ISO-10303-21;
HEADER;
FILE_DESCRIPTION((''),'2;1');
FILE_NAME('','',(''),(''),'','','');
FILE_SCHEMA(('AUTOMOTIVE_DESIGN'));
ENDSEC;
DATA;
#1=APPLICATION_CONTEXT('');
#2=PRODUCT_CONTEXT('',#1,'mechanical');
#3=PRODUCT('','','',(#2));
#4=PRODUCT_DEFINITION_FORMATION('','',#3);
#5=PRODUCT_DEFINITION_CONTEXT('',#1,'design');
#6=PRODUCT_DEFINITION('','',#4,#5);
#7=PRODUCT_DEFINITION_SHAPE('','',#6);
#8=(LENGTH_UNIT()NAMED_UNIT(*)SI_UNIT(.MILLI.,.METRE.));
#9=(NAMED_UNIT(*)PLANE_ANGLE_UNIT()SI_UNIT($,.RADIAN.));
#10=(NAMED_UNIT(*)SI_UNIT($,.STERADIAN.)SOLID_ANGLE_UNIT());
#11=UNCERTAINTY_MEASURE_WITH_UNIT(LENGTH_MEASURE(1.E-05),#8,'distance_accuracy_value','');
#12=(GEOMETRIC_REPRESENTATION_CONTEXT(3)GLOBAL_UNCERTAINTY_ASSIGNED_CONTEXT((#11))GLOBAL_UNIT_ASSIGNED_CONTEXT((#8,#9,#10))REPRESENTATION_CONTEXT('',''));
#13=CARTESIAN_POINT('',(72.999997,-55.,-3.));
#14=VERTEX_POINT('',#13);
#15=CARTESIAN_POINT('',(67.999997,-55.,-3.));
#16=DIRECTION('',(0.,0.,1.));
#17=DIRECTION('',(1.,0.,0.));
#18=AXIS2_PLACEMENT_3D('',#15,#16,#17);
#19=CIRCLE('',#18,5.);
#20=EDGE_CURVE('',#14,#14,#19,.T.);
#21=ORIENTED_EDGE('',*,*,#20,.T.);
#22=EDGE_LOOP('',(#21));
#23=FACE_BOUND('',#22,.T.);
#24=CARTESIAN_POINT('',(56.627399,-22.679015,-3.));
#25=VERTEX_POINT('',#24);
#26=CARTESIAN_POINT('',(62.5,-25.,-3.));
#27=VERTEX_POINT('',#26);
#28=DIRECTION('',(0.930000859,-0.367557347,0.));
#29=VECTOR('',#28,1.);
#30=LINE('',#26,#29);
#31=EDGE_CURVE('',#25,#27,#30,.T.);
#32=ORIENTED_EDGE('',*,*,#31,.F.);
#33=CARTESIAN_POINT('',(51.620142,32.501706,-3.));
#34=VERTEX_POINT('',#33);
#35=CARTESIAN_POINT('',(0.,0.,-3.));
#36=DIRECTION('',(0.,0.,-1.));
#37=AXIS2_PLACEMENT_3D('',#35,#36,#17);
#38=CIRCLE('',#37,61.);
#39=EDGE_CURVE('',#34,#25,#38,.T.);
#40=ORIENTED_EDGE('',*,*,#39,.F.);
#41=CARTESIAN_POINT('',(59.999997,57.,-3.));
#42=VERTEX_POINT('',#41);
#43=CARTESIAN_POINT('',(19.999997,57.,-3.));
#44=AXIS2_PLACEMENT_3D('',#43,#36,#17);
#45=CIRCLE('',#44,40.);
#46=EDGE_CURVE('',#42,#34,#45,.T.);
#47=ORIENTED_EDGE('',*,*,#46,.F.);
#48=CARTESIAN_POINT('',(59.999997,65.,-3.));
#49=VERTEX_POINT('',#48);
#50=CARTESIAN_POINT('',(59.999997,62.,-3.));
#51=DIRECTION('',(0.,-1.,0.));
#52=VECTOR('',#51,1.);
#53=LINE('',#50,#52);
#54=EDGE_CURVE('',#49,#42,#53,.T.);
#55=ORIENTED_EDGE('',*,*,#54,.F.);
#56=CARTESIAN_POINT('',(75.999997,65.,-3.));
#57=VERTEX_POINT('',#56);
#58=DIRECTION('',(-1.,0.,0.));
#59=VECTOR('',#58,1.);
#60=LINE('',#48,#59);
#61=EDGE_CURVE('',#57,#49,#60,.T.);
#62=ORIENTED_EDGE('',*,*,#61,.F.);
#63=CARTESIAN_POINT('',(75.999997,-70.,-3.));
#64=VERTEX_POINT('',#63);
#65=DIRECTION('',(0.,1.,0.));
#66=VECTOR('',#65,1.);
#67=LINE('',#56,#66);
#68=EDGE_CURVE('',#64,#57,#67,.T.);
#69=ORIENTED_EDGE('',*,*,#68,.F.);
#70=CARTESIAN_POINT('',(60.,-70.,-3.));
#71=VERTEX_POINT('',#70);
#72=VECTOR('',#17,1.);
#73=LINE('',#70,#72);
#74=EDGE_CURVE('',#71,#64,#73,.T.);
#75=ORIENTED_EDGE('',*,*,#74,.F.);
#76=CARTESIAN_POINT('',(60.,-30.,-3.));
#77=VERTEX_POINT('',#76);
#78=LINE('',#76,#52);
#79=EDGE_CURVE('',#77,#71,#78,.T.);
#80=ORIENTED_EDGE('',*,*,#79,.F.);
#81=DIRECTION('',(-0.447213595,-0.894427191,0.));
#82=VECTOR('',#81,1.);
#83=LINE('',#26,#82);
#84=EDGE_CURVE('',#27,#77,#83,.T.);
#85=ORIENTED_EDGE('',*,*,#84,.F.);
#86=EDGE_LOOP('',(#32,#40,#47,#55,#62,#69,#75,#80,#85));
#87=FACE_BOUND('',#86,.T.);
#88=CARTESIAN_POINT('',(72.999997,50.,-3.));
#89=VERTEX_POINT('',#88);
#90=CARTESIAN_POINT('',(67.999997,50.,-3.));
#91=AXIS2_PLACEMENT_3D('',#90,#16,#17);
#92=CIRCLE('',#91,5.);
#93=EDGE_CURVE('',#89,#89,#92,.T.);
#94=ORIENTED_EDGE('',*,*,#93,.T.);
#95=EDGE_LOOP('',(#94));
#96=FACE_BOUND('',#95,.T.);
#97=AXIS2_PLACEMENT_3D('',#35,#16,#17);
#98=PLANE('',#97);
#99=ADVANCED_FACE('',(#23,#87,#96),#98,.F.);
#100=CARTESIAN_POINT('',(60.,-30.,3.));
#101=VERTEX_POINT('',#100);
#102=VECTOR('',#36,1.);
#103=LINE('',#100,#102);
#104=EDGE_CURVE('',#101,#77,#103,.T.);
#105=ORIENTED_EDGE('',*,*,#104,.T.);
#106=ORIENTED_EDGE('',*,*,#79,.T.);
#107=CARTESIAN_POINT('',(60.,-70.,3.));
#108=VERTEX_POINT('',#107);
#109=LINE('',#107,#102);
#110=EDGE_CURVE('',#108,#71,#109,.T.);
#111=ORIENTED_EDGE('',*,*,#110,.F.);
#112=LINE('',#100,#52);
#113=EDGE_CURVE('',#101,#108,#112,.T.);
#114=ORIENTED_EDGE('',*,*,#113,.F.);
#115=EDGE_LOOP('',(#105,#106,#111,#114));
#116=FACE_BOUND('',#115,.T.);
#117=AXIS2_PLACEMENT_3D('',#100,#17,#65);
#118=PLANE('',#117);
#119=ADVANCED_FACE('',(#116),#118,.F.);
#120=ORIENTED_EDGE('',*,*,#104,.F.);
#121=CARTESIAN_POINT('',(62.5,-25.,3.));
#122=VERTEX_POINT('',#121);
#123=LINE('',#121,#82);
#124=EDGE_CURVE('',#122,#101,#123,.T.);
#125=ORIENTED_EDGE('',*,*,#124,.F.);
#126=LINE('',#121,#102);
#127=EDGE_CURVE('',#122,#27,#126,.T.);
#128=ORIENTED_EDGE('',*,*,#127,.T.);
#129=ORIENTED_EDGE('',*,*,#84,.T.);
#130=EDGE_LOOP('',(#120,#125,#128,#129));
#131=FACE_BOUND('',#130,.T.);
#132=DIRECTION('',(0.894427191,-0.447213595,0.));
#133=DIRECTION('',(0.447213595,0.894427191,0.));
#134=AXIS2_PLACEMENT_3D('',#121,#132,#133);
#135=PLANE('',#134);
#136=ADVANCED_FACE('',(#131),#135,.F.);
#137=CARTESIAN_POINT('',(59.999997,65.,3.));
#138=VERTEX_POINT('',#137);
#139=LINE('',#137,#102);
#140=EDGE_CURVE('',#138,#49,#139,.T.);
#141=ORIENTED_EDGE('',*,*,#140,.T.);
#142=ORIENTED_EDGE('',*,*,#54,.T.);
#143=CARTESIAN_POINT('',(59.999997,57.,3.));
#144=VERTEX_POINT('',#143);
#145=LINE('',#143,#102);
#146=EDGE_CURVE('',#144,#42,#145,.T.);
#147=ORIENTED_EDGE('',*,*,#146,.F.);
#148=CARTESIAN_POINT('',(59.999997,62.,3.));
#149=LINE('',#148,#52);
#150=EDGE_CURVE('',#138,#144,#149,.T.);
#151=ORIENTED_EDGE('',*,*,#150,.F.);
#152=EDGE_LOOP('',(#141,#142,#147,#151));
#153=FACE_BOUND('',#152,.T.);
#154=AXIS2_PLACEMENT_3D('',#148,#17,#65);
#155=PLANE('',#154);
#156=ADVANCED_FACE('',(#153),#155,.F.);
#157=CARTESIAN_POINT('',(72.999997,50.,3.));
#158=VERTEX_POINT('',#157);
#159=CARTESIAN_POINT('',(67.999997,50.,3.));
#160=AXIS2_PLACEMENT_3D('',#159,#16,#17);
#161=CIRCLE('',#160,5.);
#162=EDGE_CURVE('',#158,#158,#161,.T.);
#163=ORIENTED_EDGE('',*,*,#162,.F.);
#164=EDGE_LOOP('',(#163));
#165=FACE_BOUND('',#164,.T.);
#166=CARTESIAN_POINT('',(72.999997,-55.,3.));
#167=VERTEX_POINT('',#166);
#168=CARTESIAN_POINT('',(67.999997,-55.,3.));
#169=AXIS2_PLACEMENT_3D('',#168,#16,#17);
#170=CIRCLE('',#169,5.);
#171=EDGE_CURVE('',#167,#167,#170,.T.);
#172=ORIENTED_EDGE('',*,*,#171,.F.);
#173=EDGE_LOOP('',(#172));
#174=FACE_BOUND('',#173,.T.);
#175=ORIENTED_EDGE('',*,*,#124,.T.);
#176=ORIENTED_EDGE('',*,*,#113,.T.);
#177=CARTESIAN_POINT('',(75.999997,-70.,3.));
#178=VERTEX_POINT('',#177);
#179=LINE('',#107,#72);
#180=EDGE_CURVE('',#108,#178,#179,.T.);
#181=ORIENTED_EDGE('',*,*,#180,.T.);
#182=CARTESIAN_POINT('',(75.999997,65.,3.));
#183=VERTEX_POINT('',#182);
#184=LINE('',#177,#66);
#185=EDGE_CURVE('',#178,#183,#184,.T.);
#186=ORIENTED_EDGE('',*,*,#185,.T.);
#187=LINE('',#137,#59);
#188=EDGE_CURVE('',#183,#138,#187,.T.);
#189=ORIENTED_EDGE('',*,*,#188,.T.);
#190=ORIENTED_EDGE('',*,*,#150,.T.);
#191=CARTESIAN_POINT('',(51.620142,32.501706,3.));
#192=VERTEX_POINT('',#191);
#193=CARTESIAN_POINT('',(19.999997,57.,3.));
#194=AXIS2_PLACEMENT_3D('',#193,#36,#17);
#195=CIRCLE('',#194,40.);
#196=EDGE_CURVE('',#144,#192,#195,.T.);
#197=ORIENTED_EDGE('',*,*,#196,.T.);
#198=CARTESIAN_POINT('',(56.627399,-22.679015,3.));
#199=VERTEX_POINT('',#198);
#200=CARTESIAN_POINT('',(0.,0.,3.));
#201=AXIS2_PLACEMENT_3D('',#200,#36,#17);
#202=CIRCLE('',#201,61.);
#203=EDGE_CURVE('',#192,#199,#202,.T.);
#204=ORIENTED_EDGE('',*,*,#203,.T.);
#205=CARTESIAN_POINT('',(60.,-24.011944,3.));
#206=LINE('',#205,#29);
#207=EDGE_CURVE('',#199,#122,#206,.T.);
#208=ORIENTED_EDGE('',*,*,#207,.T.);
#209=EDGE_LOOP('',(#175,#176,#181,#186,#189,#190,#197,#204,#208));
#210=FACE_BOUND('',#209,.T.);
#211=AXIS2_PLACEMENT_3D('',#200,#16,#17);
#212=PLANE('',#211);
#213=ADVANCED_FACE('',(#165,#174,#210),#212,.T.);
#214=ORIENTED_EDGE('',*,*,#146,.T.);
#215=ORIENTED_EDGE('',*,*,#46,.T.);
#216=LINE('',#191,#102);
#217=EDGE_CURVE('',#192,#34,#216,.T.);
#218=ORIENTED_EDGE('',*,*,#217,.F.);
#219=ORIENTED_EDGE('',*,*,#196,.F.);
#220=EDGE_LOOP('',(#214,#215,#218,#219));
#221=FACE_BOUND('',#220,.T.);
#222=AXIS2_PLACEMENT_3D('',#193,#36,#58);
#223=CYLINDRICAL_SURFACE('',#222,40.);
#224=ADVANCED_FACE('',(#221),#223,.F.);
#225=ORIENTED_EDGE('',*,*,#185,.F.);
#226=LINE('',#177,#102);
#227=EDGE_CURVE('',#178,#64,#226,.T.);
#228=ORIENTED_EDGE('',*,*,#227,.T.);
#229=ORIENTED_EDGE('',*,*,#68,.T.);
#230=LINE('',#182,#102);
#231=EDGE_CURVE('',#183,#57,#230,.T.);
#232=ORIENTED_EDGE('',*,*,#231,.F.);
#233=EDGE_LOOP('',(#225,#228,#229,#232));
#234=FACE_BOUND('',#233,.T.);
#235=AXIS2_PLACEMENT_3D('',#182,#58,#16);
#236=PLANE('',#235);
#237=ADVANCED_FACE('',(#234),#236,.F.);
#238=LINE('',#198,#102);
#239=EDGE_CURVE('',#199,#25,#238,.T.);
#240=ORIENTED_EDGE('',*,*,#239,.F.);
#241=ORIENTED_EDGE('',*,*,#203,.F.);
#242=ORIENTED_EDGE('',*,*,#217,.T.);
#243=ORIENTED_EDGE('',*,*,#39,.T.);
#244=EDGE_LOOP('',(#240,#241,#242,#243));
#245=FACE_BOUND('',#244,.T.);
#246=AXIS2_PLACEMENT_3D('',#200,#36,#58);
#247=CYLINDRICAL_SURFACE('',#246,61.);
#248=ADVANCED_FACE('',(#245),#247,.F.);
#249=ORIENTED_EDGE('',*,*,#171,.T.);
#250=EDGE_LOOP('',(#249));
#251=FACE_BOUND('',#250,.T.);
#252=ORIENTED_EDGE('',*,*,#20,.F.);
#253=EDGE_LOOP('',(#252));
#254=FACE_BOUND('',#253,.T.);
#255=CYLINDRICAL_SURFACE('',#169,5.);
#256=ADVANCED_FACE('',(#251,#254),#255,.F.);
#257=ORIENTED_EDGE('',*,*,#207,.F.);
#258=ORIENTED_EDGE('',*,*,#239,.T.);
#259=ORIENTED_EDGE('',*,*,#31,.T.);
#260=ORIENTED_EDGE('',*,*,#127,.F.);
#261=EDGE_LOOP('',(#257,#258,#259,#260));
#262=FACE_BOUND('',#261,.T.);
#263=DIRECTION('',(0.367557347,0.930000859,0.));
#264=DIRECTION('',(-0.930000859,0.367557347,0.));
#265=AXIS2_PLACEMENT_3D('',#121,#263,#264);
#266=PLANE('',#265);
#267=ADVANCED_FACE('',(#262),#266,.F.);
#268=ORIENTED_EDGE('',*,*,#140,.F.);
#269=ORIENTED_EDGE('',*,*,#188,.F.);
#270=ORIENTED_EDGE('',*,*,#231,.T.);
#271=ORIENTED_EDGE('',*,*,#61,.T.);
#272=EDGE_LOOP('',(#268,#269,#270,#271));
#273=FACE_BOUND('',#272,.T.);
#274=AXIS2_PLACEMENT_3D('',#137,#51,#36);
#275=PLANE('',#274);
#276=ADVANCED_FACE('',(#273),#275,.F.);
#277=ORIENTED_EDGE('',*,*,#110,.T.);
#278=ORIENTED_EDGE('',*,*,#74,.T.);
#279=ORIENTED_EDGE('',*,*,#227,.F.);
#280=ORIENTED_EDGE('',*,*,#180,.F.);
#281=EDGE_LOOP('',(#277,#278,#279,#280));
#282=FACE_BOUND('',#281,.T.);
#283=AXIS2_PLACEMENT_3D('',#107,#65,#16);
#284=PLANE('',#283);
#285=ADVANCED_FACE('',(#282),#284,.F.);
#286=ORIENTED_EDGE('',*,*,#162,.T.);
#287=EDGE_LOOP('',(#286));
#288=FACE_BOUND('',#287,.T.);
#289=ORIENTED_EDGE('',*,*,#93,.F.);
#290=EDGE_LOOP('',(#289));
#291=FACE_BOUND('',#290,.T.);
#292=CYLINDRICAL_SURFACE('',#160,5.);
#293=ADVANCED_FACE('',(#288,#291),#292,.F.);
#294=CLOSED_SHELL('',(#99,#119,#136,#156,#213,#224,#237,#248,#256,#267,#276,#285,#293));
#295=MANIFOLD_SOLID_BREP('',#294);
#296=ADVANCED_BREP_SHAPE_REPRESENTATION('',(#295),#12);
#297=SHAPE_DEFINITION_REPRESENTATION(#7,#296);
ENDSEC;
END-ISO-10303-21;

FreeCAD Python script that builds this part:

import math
import FreeCAD as App
import Part
import Sketcher
from FreeCAD import Vector
Q = App.Units.Quantity

doc = App.newDocument("Part")
body = doc.addObject("PartDesign::Body", "Body")

# Sketch on XY plane
sketch1 = doc.addObject("Sketcher::SketchObject", "Sketch")
body.addObject(sketch1)
sketch1.AttachmentSupport = (doc.XY_Plane, [""])
sketch1.MapMode = "FlatFace"
sketch1.addGeometry(Part.ArcOfCircle(Part.Circle(Vector(19.999997, 57, 0), Vector(0, 0, 1), 40), math.radians(-37.767398), math.radians(0)), False)
sketch1.addGeometry(Part.ArcOfCircle(Part.Circle(Vector(0, 0, 0), Vector(0, 0, 1), 61), math.radians(-21.825877), math.radians(32.195841)), False)
sketch1.addGeometry(Part.LineSegment(Vector(56.627399, -22.679015, 0), Vector(60, -24.011944, 0)), False)
sketch1.addGeometry(Part.LineSegment(Vector(60, -24.011944, 0), Vector(62.5, -25, 0)), False)
sketch1.addGeometry(Part.LineSegment(Vector(62.5, -25, 0), Vector(60, -30, 0)), False)
sketch1.addGeometry(Part.LineSegment(Vector(60, -30, 0), Vector(60, -70, 0)), False)
sketch1.addGeometry(Part.LineSegment(Vector(60, -70, 0), Vector(75.999997, -70, 0)), False)
sketch1.addGeometry(Part.LineSegment(Vector(75.999997, -70, 0), Vector(75.999997, 65, 0)), False)
sketch1.addGeometry(Part.LineSegment(Vector(75.999997, 65, 0), Vector(59.999997, 65, 0)), False)
sketch1.addGeometry(Part.LineSegment(Vector(59.999997, 65, 0), Vector(59.999997, 57, 0)), False)
sketch1.addConstraint(Sketcher.Constraint("Coincident", 0, 1, 1, 2))
sketch1.addConstraint(Sketcher.Constraint("Coincident", 1, 1, 2, 1))
sketch1.addConstraint(Sketcher.Constraint("Coincident", 2, 2, 3, 1))
sketch1.addConstraint(Sketcher.Constraint("Coincident", 3, 2, 4, 1))
sketch1.addConstraint(Sketcher.Constraint("Coincident", 4, 2, 5, 1))
sketch1.addConstraint(Sketcher.Constraint("Coincident", 5, 2, 6, 1))
sketch1.addConstraint(Sketcher.Constraint("Coincident", 6, 2, 7, 1))
sketch1.addConstraint(Sketcher.Constraint("Coincident", 7, 2, 8, 1))
sketch1.addConstraint(Sketcher.Constraint("Coincident", 8, 2, 9, 1))
sketch1.addConstraint(Sketcher.Constraint("Tangent", 9, 2, 0, 2))
sketch1.addConstraint(Sketcher.Constraint("Vertical", 5))
sketch1.addConstraint(Sketcher.Constraint("Horizontal", 6))
sketch1.addConstraint(Sketcher.Constraint("Vertical", 7))
sketch1.addConstraint(Sketcher.Constraint("Horizontal", 8))
sketch1.addConstraint(Sketcher.Constraint("Vertical", 9))
sketch1.addConstraint(Sketcher.Constraint("Coincident", 1, 3, -1, 1))
sketch1.addConstraint(Sketcher.Constraint("Parallel", 2, 3))
sketch1.addConstraint(Sketcher.Constraint("Vertical", 2, 2, 4, 2))
sketch1.addConstraint(Sketcher.Constraint("Radius", 0, Q("40 mm")))
sketch1.addConstraint(Sketcher.Constraint("Radius", 1, Q("61 mm")))
sketch1.addConstraint(Sketcher.Constraint("DistanceX", 8, 2, 8, 1, Q("16 mm")))
sketch1.addConstraint(Sketcher.Constraint("DistanceY", 5, 2, 5, 1, Q("40 mm")))
sketch1.addConstraint(Sketcher.Constraint("DistanceY", 7, 1, 7, 2, Q("135 mm")))
sketch1.addConstraint(Sketcher.Constraint("DistanceY", 9, 2, 9, 1, Q("8 mm")))
sketch1.addConstraint(Sketcher.Constraint("DistanceY", -1, 1, 0, 3, Q("57 mm")))
sketch1.addConstraint(Sketcher.Constraint("DistanceX", -1, 1, 2, 2, Q("60 mm")))
sketch1.addConstraint(Sketcher.Constraint("DistanceY", 3, 2, -1, 1, Q("25 mm")))
sketch1.addConstraint(Sketcher.Constraint("DistanceX", -1, 1, 3, 2, Q("62.5 mm")))
sketch1.addConstraint(Sketcher.Constraint("DistanceX", -1, 1, 1, 1, Q("56.627399 mm")))
sketch1.addConstraint(Sketcher.Constraint("DistanceX", 0, 3, 1, 1, Q("36.627401 mm")))
pad1 = doc.addObject("PartDesign::Pad", "Pad")
body.addObject(pad1)
pad1.Profile = sketch1
pad1.Length = 6
pad1.Midplane = True

# Sketch on XY plane
sketch2 = doc.addObject("Sketcher::SketchObject", "Sketch001")
body.addObject(sketch2)
sketch2.AttachmentSupport = (doc.XY_Plane, [""])
sketch2.MapMode = "FlatFace"
sketch2.AttachmentOffset = App.Placement(Vector(0, 0, 3), App.Rotation())
sketch2.addGeometry(Part.Circle(Vector(67.999997, 50, 0), Vector(0, 0, 1), 5), False)
sketch2.addGeometry(Part.Circle(Vector(67.999997, -55, 0), Vector(0, 0, 1), 5), False)
sketch2.addConstraint(Sketcher.Constraint("Equal", 0, 1))
sketch2.addConstraint(Sketcher.Constraint("Vertical", 0, 3, 1, 3))
sketch2.addConstraint(Sketcher.Constraint("Diameter", 0, Q("10 mm")))
sketch2.addConstraint(Sketcher.Constraint("DistanceY", -1, 1, 0, 3, Q("50 mm")))
sketch2.addConstraint(Sketcher.Constraint("DistanceY", 1, 3, -1, 1, Q("55 mm")))
sketch2.addConstraint(Sketcher.Constraint("DistanceX", -1, 1, 0, 3, Q("67.999997 mm")))
doc.recompute()
hole = doc.addObject("PartDesign::Hole", "Hole")
body.addObject(hole)
hole.Profile = sketch2
hole.ThreadType = "None"
hole.Diameter = 10
hole.DepthType = "ThroughAll"

doc.recompute()
